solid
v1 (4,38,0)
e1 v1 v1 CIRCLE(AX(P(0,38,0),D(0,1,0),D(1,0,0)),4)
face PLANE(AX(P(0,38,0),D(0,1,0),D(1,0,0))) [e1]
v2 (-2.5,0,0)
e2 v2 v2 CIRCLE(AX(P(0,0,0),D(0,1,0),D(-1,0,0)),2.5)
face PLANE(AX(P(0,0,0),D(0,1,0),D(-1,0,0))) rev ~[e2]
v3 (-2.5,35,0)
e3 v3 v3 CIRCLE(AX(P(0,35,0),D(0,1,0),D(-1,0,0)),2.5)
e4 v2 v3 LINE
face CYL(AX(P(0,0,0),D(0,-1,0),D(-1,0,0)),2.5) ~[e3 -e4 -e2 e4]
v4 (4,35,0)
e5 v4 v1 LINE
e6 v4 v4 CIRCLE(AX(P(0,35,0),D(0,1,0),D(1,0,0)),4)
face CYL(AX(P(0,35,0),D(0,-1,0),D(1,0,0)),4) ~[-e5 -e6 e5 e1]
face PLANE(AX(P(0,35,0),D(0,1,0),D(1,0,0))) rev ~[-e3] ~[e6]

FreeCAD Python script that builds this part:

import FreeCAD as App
import Part
import Sketcher
from FreeCAD import Vector

doc = App.newDocument("Part")
body = doc.addObject("PartDesign::Body", "Body")

sketch1 = body.newObject("Sketcher::SketchObject", "Sketch")
sketch1.AttachmentSupport = (doc.getObject("XZ_Plane"), [""])
sketch1.MapMode = "FlatFace"
sketch1.addGeometry(Part.Circle(Vector(0, 0, 0), Vector(0, 0, 1), 2.5), False)
sketch1.addConstraint([
    Sketcher.Constraint("Coincident", 0, 3, -1, 1),
    Sketcher.Constraint("Diameter", 0, 5.0),
])
pad1 = body.newObject("PartDesign::Pad", "Pad")
pad1.Profile = sketch1
pad1.Length = 35
pad1.Reversed = True

sketch2 = body.newObject("Sketcher::SketchObject", "Sketch001")
sketch2.AttachmentSupport = (doc.getObject("XZ_Plane"), [""])
sketch2.MapMode = "FlatFace"
sketch2.AttachmentOffset = App.Placement(Vector(0, 0, -35), App.Rotation())
sketch2.addGeometry(Part.Circle(Vector(0, 0, 0), Vector(0, 0, 1), 4), False)
sketch2.addConstraint([
    Sketcher.Constraint("Coincident", 0, 3, -1, 1),
    Sketcher.Constraint("Diameter", 0, 8.0),
])
pad2 = body.newObject("PartDesign::Pad", "Pad001")
pad2.Profile = sketch2
pad2.Length = 3
pad2.Reversed = True

doc.recompute()
